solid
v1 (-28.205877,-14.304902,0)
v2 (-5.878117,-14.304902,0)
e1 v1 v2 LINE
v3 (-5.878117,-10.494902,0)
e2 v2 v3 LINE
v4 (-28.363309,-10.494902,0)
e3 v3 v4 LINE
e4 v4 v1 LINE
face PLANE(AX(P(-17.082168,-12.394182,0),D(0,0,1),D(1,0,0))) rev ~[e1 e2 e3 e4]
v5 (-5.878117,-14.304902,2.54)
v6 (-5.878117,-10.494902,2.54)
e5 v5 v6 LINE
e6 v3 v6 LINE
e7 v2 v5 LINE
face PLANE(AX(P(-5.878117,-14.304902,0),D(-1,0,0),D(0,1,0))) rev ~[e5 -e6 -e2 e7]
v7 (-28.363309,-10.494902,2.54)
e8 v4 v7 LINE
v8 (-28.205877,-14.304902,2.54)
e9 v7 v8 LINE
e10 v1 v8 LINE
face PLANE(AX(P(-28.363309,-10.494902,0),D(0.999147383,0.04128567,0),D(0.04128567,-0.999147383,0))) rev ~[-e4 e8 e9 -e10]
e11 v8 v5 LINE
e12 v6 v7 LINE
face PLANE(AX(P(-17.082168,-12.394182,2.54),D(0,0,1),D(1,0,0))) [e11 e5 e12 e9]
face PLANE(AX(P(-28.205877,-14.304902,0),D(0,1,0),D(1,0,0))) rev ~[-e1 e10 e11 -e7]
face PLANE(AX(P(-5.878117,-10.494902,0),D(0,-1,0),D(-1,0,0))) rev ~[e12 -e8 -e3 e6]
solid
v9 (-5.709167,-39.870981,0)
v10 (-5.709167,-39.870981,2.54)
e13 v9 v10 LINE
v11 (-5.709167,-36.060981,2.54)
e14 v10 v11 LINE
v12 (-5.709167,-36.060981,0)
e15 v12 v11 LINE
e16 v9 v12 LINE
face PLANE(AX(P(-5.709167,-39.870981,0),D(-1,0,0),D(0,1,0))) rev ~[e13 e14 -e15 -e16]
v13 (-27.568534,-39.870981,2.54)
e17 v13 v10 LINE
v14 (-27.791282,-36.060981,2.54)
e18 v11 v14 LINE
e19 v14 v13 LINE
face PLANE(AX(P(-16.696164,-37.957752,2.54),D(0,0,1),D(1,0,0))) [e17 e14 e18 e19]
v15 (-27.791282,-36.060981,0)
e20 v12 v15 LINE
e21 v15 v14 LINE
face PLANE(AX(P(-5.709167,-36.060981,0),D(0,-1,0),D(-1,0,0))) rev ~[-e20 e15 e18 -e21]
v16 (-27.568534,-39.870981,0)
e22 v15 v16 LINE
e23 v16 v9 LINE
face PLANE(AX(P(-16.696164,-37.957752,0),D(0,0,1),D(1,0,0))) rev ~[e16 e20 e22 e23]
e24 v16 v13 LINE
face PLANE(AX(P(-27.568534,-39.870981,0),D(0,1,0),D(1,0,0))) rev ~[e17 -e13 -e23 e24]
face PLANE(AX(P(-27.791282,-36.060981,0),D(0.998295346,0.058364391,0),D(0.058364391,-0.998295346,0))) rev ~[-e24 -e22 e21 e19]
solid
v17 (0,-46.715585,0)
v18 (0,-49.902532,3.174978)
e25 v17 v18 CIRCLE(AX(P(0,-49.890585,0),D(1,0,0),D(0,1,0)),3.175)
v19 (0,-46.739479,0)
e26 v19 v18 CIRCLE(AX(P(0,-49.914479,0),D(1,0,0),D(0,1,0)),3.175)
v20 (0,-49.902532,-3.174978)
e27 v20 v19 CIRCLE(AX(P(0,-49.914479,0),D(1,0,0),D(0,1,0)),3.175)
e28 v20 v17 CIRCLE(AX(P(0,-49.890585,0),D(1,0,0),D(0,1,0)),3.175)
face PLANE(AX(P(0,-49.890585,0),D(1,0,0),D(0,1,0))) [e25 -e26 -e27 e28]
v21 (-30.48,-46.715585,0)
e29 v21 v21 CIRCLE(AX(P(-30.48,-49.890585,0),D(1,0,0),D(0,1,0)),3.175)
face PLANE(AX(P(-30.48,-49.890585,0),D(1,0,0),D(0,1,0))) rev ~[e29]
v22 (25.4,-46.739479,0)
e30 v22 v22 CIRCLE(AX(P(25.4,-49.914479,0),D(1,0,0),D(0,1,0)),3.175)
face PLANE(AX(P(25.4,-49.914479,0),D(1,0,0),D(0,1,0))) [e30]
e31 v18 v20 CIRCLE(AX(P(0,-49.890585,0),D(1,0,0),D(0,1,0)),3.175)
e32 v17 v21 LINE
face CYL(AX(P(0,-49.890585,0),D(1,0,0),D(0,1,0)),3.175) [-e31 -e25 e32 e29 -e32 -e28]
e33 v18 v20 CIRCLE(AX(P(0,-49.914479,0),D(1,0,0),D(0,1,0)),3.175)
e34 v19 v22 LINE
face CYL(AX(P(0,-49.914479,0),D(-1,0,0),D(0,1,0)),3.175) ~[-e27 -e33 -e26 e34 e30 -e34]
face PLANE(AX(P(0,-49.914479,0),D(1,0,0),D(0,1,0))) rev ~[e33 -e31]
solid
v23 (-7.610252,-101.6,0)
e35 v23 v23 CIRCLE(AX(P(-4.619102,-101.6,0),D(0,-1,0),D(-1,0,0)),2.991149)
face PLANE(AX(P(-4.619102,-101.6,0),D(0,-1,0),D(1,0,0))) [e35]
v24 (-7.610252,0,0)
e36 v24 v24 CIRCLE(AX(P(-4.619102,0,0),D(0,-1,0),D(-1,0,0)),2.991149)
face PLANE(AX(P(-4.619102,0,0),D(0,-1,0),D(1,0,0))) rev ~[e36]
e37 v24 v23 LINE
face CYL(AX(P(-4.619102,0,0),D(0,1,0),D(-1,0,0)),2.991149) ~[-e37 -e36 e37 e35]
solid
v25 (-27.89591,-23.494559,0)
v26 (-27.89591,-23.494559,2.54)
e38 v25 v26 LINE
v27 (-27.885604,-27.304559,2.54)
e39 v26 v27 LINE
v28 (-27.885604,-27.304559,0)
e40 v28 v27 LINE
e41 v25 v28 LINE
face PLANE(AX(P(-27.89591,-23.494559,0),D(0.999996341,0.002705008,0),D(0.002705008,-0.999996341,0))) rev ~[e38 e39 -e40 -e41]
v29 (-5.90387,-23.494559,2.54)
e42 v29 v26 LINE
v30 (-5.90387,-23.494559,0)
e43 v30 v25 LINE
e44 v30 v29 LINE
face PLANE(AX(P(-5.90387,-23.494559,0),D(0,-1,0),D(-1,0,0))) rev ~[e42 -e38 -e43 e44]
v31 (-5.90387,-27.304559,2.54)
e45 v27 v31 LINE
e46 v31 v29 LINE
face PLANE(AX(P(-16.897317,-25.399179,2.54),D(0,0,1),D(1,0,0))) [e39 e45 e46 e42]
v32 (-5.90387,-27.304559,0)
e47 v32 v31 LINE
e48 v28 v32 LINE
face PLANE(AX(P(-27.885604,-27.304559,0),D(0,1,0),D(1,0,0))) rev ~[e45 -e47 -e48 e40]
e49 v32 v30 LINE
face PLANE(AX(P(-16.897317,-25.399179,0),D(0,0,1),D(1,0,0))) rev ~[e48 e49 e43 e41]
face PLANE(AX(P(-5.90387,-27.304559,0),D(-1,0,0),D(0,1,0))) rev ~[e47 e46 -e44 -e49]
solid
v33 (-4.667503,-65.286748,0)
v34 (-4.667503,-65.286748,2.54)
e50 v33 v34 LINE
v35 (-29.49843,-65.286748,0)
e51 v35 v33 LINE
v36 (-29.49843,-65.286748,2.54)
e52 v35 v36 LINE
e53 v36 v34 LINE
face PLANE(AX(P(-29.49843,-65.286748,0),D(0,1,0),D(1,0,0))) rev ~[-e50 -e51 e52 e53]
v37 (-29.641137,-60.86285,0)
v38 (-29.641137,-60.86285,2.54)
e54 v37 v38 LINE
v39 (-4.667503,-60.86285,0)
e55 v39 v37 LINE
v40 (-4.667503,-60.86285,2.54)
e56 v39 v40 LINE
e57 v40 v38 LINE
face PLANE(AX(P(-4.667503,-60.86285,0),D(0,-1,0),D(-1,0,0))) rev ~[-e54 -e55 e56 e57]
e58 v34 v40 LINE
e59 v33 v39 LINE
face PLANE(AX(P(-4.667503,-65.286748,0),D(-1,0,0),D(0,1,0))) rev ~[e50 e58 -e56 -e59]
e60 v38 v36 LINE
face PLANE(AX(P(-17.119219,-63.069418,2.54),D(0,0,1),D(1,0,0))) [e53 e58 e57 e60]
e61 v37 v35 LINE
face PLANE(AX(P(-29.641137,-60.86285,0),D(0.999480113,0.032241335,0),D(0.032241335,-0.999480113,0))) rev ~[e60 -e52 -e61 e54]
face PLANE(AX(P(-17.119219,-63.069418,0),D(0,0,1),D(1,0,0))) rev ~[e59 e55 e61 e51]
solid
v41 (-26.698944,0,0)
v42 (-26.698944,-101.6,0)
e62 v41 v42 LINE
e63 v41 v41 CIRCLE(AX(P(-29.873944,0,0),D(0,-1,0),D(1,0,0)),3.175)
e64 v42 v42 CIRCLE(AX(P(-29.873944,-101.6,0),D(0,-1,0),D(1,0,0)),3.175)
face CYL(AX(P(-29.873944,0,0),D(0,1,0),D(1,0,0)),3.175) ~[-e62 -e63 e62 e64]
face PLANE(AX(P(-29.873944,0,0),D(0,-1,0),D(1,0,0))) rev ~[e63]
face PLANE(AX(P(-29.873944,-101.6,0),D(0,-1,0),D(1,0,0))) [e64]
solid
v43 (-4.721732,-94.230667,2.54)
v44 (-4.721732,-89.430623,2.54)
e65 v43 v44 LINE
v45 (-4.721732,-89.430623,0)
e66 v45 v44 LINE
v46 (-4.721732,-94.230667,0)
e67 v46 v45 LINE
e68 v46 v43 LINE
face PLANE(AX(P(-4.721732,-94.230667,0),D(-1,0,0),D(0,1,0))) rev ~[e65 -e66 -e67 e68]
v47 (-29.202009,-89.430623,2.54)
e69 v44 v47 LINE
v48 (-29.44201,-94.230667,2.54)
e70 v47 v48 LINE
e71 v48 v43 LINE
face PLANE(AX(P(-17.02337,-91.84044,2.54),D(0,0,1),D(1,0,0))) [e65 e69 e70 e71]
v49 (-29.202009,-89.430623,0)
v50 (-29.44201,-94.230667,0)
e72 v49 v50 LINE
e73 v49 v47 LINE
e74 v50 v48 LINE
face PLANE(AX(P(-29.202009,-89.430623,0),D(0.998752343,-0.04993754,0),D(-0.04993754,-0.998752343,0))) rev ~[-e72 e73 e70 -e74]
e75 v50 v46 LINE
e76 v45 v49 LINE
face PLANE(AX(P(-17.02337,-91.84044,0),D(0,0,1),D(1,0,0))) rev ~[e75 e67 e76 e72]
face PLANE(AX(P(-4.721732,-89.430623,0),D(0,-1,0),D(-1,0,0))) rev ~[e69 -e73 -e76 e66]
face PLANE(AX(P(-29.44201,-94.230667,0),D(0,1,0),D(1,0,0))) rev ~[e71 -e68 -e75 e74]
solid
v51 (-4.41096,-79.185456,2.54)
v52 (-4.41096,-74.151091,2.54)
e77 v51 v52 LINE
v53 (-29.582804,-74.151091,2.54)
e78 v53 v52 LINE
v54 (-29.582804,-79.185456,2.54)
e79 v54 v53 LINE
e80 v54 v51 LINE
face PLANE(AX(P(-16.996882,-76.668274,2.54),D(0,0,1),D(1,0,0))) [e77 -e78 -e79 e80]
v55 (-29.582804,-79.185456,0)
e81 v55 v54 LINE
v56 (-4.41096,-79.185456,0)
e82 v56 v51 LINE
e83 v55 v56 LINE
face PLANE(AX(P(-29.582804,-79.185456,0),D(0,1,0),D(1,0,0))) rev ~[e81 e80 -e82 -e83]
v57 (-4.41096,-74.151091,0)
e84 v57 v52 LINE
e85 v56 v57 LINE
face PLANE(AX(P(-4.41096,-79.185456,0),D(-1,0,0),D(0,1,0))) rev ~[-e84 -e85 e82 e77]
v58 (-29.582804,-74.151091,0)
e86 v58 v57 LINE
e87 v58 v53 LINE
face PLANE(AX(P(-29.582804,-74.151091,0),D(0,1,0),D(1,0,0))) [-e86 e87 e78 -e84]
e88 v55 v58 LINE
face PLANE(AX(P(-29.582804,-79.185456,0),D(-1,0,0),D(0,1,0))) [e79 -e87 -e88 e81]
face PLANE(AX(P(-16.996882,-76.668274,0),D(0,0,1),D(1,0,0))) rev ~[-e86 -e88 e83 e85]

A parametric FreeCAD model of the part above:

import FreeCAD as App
import Part
import Sketcher
from FreeCAD import Vector
Q = App.Units.Quantity


def add_polygon(sketch, points):
    """Adds a closed chain of lines whose ends are joined by coincident constraints."""
    first, n = sketch.GeometryCount, len(points)
    for a, b in zip(points, points[1:] + points[:1]):
        sketch.addGeometry(Part.LineSegment(App.Vector(*a, 0), App.Vector(*b, 0)), False)
    for i in range(n):
        sketch.addConstraint(Sketcher.Constraint("Coincident", first + i, 2, first + (i + 1) % n, 1))

doc = App.newDocument("Part")
params = doc.addObject("Spreadsheet::Sheet", "Params")
for row, (alias, value) in enumerate([
    ("pad1_length", "4 in"),
    ("sketch2_diameter", "0.25 in"),
    ("pad2_length", "4 in"),
    ("sketch3_height", "0.15 in"),
    ("pad3_length", "0.1 in"),
    ("sketch4_height", "0.15 in"),
    ("pad4_length", "0.1 in"),
    ("sketch5_height", "0.15 in"),
    ("pad5_length", "0.1 in"),
    ("pad6_length", "0.1 in"),
    ("pad7_length", "0.1 in"),
    ("pad8_length", "0.1 in"),
    ("sketch9_diameter", "0.25 in"),
    ("pad9_length", "1 in"),
    ("sketch10_diameter", "0.25 in"),
    ("pad10_length", "1.2 in"),
], start=1):
    params.set(f"A{row}", alias)
    params.set(f"B{row}", "=" + value)
    params.setAlias(f"B{row}", alias)

body = doc.addObject("PartDesign::Body", "Body")

sketch1 = body.newObject("Sketcher::SketchObject", "Sketch")
sketch1.AttachmentSupport = (doc.getObject("XZ_Plane"), [""])
sketch1.MapMode = "FlatFace"
sketch1.addGeometry(Part.Circle(Vector(-4.619102, 0, 0), Vector(0, 0, 1), 2.991149), False)
sketch1.addConstraint(Sketcher.Constraint("PointOnObject", 0, 3, -1))
sketch1.addConstraint(Sketcher.Constraint("Diameter", 0, Q("5.982298 mm")))
sketch1.addConstraint(Sketcher.Constraint("DistanceX", 0, 3, -1, 1, Q("4.619102 mm")))
pad1 = body.newObject("PartDesign::Pad", "Pad")
pad1.Profile = sketch1
pad1.setExpression("Length", "Params.pad1_length")
body2 = doc.addObject("PartDesign::Body", "Body001")

sketch2 = body2.newObject("Sketcher::SketchObject", "Sketch001")
sketch2.AttachmentSupport = (doc.getObject("XZ_Plane001"), [""])
sketch2.MapMode = "FlatFace"
sketch2.addGeometry(Part.Circle(Vector(-29.873944, 0, 0), Vector(0, 0, 1), 3.175), False)
sketch2.addConstraint(Sketcher.Constraint("PointOnObject", 0, 3, -1))
sketch2.addConstraint(Sketcher.Constraint("Diameter", 0, Q("0.25 in")))
sketch2.addConstraint(Sketcher.Constraint("DistanceX", 0, 3, -1, 1, Q("29.873944 mm")))
sketch2.setExpression("Constraints[1]", "Params.sketch2_diameter")
pad2 = body2.newObject("PartDesign::Pad", "Pad001")
pad2.Profile = sketch2
pad2.setExpression("Length", "Params.pad2_length")
body3 = doc.addObject("PartDesign::Body", "Body002")

sketch3 = body3.newObject("Sketcher::SketchObject", "Sketch002")
sketch3.AttachmentSupport = (doc.getObject("XY_Plane002"), [""])
sketch3.MapMode = "FlatFace"
add_polygon(sketch3, [(-5.878117, -10.494902), (-28.363309, -10.494902), (-28.205877, -14.304902), (-5.878117, -14.304902)])
sketch3.addConstraint(Sketcher.Constraint("Horizontal", 0))
sketch3.addConstraint(Sketcher.Constraint("Horizontal", 2))
sketch3.addConstraint(Sketcher.Constraint("Vertical", 3))
sketch3.addConstraint(Sketcher.Constraint("DistanceY", 3, 1, 3, 2, Q("0.15 in")))
sketch3.addConstraint(Sketcher.Constraint("DistanceX", 0, 2, 0, 1, Q("22.485192 mm")))
sketch3.addConstraint(Sketcher.Constraint("DistanceX", 2, 1, 2, 2, Q("22.327759 mm")))
sketch3.addConstraint(Sketcher.Constraint("DistanceY", 0, 2, -1, 1, Q("10.494902 mm")))
sketch3.addConstraint(Sketcher.Constraint("DistanceX", 0, 2, -1, 1, Q("28.363309 mm")))
sketch3.setExpression("Constraints[7]", "Params.sketch3_height")
pad3 = body3.newObject("PartDesign::Pad", "Pad002")
pad3.Profile = sketch3
pad3.setExpression("Length", "Params.pad3_length")
body4 = doc.addObject("PartDesign::Body", "Body003")

sketch4 = body4.newObject("Sketcher::SketchObject", "Sketch003")
sketch4.AttachmentSupport = (doc.getObject("XY_Plane003"), [""])
sketch4.MapMode = "FlatFace"
add_polygon(sketch4, [(-5.90387, -23.494559), (-27.89591, -23.494559), (-27.885604, -27.304559), (-5.90387, -27.304559)])
sketch4.addConstraint(Sketcher.Constraint("Horizontal", 0))
sketch4.addConstraint(Sketcher.Constraint("Horizontal", 2))
sketch4.addConstraint(Sketcher.Constraint("Vertical", 3))
sketch4.addConstraint(Sketcher.Constraint("DistanceY", 3, 1, 3, 2, Q("0.15 in")))
sketch4.addConstraint(Sketcher.Constraint("DistanceX", 0, 2, 0, 1, Q("21.99204 mm")))
sketch4.addConstraint(Sketcher.Constraint("DistanceX", 2, 1, 2, 2, Q("21.981734 mm")))
sketch4.addConstraint(Sketcher.Constraint("DistanceX", 0, 2, -1, 1, Q("27.89591 mm")))
sketch4.addConstraint(Sketcher.Constraint("DistanceY", 0, 2, -1, 1, Q("23.494559 mm")))
sketch4.setExpression("Constraints[7]", "Params.sketch4_height")
pad4 = body4.newObject("PartDesign::Pad", "Pad003")
pad4.Profile = sketch4
pad4.setExpression("Length", "Params.pad4_length")
body5 = doc.addObject("PartDesign::Body", "Body004")

sketch5 = body5.newObject("Sketcher::SketchObject", "Sketch004")
sketch5.AttachmentSupport = (doc.getObject("XY_Plane004"), [""])
sketch5.MapMode = "FlatFace"
add_polygon(sketch5, [(-5.709167, -36.060981), (-27.791282, -36.060981), (-27.568534, -39.870981), (-5.709167, -39.870981)])
sketch5.addConstraint(Sketcher.Constraint("Horizontal", 0))
sketch5.addConstraint(Sketcher.Constraint("Horizontal", 2))
sketch5.addConstraint(Sketcher.Constraint("Vertical", 3))
sketch5.addConstraint(Sketcher.Constraint("DistanceY", 3, 1, 3, 2, Q("0.15 in")))
sketch5.addConstraint(Sketcher.Constraint("DistanceX", 0, 2, 0, 1, Q("22.082115 mm")))
sketch5.addConstraint(Sketcher.Constraint("DistanceX", 2, 1, 2, 2, Q("21.859367 mm")))
sketch5.addConstraint(Sketcher.Constraint("DistanceY", 0, 2, -1, 1, Q("36.060981 mm")))
sketch5.addConstraint(Sketcher.Constraint("DistanceX", 0, 2, -1, 1, Q("27.791282 mm")))
sketch5.setExpression("Constraints[7]", "Params.sketch5_height")
pad5 = body5.newObject("PartDesign::Pad", "Pad004")
pad5.Profile = sketch5
pad5.setExpression("Length", "Params.pad5_length")
body6 = doc.addObject("PartDesign::Body", "Body005")

sketch6 = body6.newObject("Sketcher::SketchObject", "Sketch005")
sketch6.AttachmentSupport = (doc.getObject("XY_Plane005"), [""])
sketch6.MapMode = "FlatFace"
add_polygon(sketch6, [(-4.667503, -60.86285), (-29.641137, -60.86285), (-29.49843, -65.286748), (-4.667503, -65.286748)])
sketch6.addConstraint(Sketcher.Constraint("Horizontal", 0))
sketch6.addConstraint(Sketcher.Constraint("Horizontal", 2))
sketch6.addConstraint(Sketcher.Constraint("Vertical", 3))
sketch6.addConstraint(Sketcher.Constraint("Distance", 1, Q("4.426199 mm")))
sketch6.addConstraint(Sketcher.Constraint("DistanceX", 0, 2, 0, 1, Q("24.973633 mm")))
sketch6.addConstraint(Sketcher.Constraint("DistanceX", 2, 1, 2, 2, Q("24.830927 mm")))
sketch6.addConstraint(Sketcher.Constraint("DistanceY", 0, 2, -1, 1, Q("60.86285 mm")))
sketch6.addConstraint(Sketcher.Constraint("DistanceX", 1, 2, -1, 1, Q("29.49843 mm")))
pad6 = body6.newObject("PartDesign::Pad", "Pad005")
pad6.Profile = sketch6
pad6.setExpression("Length", "Params.pad6_length")
body7 = doc.addObject("PartDesign::Body", "Body006")

sketch7 = body7.newObject("Sketcher::SketchObject", "Sketch006")
sketch7.AttachmentSupport = (doc.getObject("XY_Plane006"), [""])
sketch7.MapMode = "FlatFace"
add_polygon(sketch7, [(-29.582804, -74.151091), (-29.582804, -79.185456), (-4.41096, -79.185456), (-4.41096, -74.151091)])
sketch7.addConstraint(Sketcher.Constraint("Vertical", 0))
sketch7.addConstraint(Sketcher.Constraint("Horizontal", 1))
sketch7.addConstraint(Sketcher.Constraint("Vertical", 2))
sketch7.addConstraint(Sketcher.Constraint("Horizontal", 3))
sketch7.addConstraint(Sketcher.Constraint("DistanceX", 1, 1, 1, 2, Q("25.171844 mm")))
sketch7.addConstraint(Sketcher.Constraint("DistanceY", 0, 2, 0, 1, Q("5.034365 mm")))
sketch7.addConstraint(Sketcher.Constraint("DistanceX", 1, 2, -1, 1, Q("4.41096 mm")))
sketch7.addConstraint(Sketcher.Constraint("DistanceY", 2, 2, -1, 1, Q("74.151091 mm")))
pad7 = body7.newObject("PartDesign::Pad", "Pad006")
pad7.Profile = sketch7
pad7.setExpression("Length", "Params.pad7_length")
body8 = doc.addObject("PartDesign::Body", "Body007")

sketch8 = body8.newObject("Sketcher::SketchObject", "Sketch007")
sketch8.AttachmentSupport = (doc.getObject("XY_Plane007"), [""])
sketch8.MapMode = "FlatFace"
add_polygon(sketch8, [(-4.721732, -89.430623), (-29.202009, -89.430623), (-29.44201, -94.230667), (-4.721732, -94.230667)])
sketch8.addConstraint(Sketcher.Constraint("Horizontal", 0))
sketch8.addConstraint(Sketcher.Constraint("Horizontal", 2))
sketch8.addConstraint(Sketcher.Constraint("Vertical", 3))
sketch8.addConstraint(Sketcher.Constraint("DistanceX", 2, 1, 2, 2, Q("24.720278 mm")))
sketch8.addConstraint(Sketcher.Constraint("DistanceX", 1, 2, 0, 2, Q("0.240002 mm")))
sketch8.addConstraint(Sketcher.Constraint("Distance", 1, Q("4.80604 mm")))
sketch8.addConstraint(Sketcher.Constraint("DistanceX", 0, 2, -1, 1, Q("29.202009 mm")))
sketch8.addConstraint(Sketcher.Constraint("DistanceY", 0, 2, -1, 1, Q("89.430623 mm")))
pad8 = body8.newObject("PartDesign::Pad", "Pad007")
pad8.Profile = sketch8
pad8.setExpression("Length", "Params.pad8_length")
body9 = doc.addObject("PartDesign::Body", "Body008")

sketch9 = body9.newObject("Sketcher::SketchObject", "Sketch008")
sketch9.AttachmentSupport = (doc.getObject("YZ_Plane008"), [""])
sketch9.MapMode = "FlatFace"
sketch9.addGeometry(Part.Circle(Vector(-49.914479, 0, 0), Vector(0, 0, 1), 3.175), False)
sketch9.addConstraint(Sketcher.Constraint("PointOnObject", 0, 3, -1))
sketch9.addConstraint(Sketcher.Constraint("Diameter", 0, Q("0.25 in")))
sketch9.addConstraint(Sketcher.Constraint("DistanceX", 0, 3, -1, 1, Q("49.914479 mm")))
sketch9.setExpression("Constraints[1]", "Params.sketch9_diameter")
pad9 = body9.newObject("PartDesign::Pad", "Pad008")
pad9.Profile = sketch9
pad9.setExpression("Length", "Params.pad9_length")

sketch10 = body9.newObject("Sketcher::SketchObject", "Sketch009")
sketch10.AttachmentSupport = (doc.getObject("YZ_Plane008"), [""])
sketch10.MapMode = "FlatFace"
sketch10.addGeometry(Part.Circle(Vector(-49.890585, 0, 0), Vector(0, 0, 1), 3.175), False)
sketch10.addConstraint(Sketcher.Constraint("PointOnObject", 0, 3, -1))
sketch10.addConstraint(Sketcher.Constraint("Diameter", 0, Q("0.25 in")))
sketch10.addConstraint(Sketcher.Constraint("DistanceX", 0, 3, -1, 1, Q("49.890585 mm")))
sketch10.setExpression("Constraints[1]", "Params.sketch10_diameter")
pad10 = body9.newObject("PartDesign::Pad", "Pad009")
pad10.Profile = sketch10
pad10.setExpression("Length", "Params.pad10_length")
pad10.Reversed = True

doc.recompute()
